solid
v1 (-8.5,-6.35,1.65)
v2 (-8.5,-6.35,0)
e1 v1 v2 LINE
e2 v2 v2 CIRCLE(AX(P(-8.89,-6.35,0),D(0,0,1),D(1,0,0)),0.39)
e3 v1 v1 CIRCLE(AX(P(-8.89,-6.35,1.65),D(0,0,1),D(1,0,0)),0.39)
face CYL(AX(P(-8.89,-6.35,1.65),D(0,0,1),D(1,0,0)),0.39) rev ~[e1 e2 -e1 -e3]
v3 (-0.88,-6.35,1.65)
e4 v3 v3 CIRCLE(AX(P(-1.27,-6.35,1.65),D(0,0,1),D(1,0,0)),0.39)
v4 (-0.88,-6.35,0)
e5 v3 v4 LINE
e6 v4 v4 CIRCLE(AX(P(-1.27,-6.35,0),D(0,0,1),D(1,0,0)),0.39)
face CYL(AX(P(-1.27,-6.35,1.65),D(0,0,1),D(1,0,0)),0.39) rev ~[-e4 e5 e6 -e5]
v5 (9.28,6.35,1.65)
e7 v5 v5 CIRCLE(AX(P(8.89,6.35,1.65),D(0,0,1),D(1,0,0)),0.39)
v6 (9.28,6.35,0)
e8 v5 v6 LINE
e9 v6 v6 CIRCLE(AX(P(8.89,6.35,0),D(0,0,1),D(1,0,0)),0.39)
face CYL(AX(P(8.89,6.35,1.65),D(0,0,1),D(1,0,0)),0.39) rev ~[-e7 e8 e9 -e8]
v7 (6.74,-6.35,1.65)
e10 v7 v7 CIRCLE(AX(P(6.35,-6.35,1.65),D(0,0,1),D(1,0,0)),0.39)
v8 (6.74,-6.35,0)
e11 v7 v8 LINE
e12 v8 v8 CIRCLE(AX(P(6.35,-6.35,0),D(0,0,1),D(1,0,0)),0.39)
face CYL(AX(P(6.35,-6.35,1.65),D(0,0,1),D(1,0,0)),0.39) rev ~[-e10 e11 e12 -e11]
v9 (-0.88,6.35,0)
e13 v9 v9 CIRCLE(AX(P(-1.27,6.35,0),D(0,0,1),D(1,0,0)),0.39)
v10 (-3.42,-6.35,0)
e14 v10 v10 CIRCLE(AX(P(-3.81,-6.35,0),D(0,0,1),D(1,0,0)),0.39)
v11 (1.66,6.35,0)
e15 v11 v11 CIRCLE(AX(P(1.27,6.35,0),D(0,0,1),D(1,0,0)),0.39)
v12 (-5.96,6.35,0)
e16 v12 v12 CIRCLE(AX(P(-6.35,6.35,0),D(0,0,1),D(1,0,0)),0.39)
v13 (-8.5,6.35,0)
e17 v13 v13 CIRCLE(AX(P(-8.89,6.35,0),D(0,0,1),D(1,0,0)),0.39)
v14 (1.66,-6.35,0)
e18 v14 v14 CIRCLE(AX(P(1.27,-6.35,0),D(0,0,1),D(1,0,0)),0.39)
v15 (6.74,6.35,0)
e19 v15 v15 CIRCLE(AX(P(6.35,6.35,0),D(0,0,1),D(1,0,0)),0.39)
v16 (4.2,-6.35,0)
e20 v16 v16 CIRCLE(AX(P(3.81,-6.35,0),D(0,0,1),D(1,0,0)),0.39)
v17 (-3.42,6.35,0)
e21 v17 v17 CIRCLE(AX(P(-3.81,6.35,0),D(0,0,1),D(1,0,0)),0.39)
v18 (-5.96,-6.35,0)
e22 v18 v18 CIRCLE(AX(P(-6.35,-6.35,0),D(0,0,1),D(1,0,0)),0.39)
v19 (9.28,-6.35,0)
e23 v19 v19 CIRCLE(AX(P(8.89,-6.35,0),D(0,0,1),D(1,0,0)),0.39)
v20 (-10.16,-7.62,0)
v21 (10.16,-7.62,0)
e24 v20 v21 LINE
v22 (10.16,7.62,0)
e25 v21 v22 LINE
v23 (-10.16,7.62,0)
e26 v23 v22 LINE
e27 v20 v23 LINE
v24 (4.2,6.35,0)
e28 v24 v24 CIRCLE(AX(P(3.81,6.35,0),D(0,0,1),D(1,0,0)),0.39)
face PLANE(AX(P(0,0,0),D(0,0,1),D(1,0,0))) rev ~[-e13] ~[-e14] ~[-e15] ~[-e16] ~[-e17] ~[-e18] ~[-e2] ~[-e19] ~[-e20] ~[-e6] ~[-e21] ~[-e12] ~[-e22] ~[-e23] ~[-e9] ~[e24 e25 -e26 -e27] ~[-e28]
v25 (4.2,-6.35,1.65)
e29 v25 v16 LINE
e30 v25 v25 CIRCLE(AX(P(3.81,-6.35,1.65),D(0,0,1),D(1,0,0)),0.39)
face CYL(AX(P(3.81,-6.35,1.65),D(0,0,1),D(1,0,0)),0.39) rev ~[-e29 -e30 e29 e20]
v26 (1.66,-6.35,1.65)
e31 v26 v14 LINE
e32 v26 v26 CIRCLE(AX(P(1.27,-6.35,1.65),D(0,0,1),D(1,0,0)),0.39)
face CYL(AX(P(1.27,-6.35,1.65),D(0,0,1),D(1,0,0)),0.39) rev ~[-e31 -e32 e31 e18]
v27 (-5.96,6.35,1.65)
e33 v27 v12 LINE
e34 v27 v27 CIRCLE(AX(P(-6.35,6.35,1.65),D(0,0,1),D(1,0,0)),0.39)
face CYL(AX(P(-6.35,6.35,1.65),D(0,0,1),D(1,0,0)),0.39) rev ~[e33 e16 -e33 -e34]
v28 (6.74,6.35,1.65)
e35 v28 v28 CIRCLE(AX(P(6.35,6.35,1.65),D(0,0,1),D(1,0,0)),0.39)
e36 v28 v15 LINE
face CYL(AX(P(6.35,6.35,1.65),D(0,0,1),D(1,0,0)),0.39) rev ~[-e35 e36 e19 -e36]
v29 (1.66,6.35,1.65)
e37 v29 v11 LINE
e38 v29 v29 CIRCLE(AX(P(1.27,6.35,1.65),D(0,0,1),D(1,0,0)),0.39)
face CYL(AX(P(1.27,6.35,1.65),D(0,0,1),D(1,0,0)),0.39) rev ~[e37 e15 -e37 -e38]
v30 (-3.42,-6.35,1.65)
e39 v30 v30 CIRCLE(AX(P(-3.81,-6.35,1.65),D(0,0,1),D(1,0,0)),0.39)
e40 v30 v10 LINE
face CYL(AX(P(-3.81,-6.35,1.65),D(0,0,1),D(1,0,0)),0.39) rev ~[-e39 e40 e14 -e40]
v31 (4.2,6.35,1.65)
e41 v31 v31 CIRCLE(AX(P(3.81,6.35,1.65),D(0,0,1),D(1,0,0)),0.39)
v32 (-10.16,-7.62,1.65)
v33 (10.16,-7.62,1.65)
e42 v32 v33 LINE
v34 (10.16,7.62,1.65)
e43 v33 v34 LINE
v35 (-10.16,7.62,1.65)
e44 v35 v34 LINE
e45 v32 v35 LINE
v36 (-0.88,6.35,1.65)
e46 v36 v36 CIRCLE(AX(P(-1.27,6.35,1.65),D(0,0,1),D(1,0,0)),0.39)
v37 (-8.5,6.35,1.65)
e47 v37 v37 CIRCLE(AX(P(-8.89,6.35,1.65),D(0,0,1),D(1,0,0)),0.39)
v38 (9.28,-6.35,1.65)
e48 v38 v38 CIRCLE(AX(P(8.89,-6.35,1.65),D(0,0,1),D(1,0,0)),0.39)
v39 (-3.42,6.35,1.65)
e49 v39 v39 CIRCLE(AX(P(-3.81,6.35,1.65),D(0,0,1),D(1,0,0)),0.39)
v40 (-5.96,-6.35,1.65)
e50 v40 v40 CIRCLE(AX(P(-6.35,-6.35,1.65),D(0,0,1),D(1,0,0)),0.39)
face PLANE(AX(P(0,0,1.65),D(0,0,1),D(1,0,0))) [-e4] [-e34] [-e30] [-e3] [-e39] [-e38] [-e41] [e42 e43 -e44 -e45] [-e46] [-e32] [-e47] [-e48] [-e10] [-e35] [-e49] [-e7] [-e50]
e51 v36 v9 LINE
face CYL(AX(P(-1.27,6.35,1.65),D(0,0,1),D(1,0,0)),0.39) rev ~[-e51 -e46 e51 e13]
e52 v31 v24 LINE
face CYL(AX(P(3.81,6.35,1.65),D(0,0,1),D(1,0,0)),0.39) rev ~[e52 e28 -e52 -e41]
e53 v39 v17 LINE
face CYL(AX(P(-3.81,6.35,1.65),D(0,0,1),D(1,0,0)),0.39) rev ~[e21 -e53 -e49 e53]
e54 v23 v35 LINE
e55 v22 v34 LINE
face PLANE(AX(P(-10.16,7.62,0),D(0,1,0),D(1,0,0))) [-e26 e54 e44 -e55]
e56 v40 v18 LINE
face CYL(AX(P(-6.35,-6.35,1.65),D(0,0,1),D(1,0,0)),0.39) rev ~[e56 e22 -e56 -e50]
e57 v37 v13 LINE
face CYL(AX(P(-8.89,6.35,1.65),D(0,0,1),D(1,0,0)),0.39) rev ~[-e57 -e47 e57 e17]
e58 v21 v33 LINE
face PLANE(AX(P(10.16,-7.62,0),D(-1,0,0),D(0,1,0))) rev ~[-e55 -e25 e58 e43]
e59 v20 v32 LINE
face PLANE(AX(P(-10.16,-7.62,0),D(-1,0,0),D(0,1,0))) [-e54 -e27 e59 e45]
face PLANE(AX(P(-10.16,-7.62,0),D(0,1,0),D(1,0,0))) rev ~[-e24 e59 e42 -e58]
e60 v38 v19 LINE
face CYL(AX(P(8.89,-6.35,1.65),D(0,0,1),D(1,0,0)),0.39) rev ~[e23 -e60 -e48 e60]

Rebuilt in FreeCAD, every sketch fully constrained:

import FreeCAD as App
import Part
import Sketcher

V = App.Vector
Q = App.Units.Quantity

doc = App.newDocument("Part")
body = doc.addObject("PartDesign::Body", "Body")

# Sketch on XY plane
sketch1 = body.newObject("Sketcher::SketchObject", "Sketch")
sketch1.AttachmentSupport = (doc.getObject("XY_Plane"), [""])
sketch1.MapMode = "FlatFace"
sketch1.addGeometry(Part.LineSegment(V(-10, 8, 0), V(-10, -8, 0)), False)
sketch1.addGeometry(Part.LineSegment(V(-10, -8, 0), V(10, -8, 0)), False)
sketch1.addGeometry(Part.LineSegment(V(10, -8, 0), V(10, 8, 0)), False)
sketch1.addGeometry(Part.LineSegment(V(10, 8, 0), V(-10, 8, 0)), False)
sketch1.addConstraint(Sketcher.Constraint("Coincident", 0, 2, 1, 1))
sketch1.addConstraint(Sketcher.Constraint("Coincident", 1, 2, 2, 1))
sketch1.addConstraint(Sketcher.Constraint("Coincident", 2, 2, 3, 1))
sketch1.addConstraint(Sketcher.Constraint("Coincident", 3, 2, 0, 1))
sketch1.addConstraint(Sketcher.Constraint("Vertical", 0))
sketch1.addConstraint(Sketcher.Constraint("Horizontal", 1))
sketch1.addConstraint(Sketcher.Constraint("Vertical", 2))
sketch1.addConstraint(Sketcher.Constraint("Horizontal", 3))
sketch1.addConstraint(Sketcher.Constraint("Symmetric", 0, 2, 2, 2, -1, 1))
sketch1.addConstraint(Sketcher.Constraint("DistanceX", 1, 1, 1, 2, Q("0.8 in")))
sketch1.addConstraint(Sketcher.Constraint("DistanceY", 0, 2, 0, 1, Q("0.6 in")))
pad1 = body.newObject("PartDesign::Pad", "Pad")
pad1.Profile = sketch1
pad1.Length = 1.65

# Sketch on XY plane
sketch2 = body.newObject("Sketcher::SketchObject", "Sketch001")
sketch2.AttachmentSupport = (doc.getObject("XY_Plane"), [""])
sketch2.MapMode = "FlatFace"
sketch2.AttachmentOffset = App.Placement(V(0, 0, 1.65), App.Rotation())
sketch2.addGeometry(Part.Circle(V(-8.89, -6.35, 0), V(0, 0, 1), 0.39), False)
sketch2.addGeometry(Part.Circle(V(-8.89, 6.35, 0), V(0, 0, 1), 0.39), False)
sketch2.addConstraint(Sketcher.Constraint("Equal", 0, 1))
sketch2.addConstraint(Sketcher.Constraint("Symmetric", 0, 3, 1, 3, -1))
sketch2.addConstraint(Sketcher.Constraint("DistanceY", 0, 3, 1, 3, Q("0.5 in")))
sketch2.addConstraint(Sketcher.Constraint("Diameter", 0, 0.78))
sketch2.addConstraint(Sketcher.Constraint("DistanceX", 0, 3, -1, 1, Q("0.35 in")))
pocket1 = body.newObject("PartDesign::Pocket", "Pocket")
pocket1.Profile = sketch2
pocket1.Type = "ThroughAll"
doc.recompute()

linearpattern = body.newObject("PartDesign::LinearPattern", "LinearPattern")
linearpattern.Originals = [pocket1]
linearpattern.Direction = (doc.getObject("X_Axis"), [""])
linearpattern.Mode = "offset"
linearpattern.Offset = Q("0.1 in")
linearpattern.Occurrences = 8
body.Tip = linearpattern

doc.recompute()
